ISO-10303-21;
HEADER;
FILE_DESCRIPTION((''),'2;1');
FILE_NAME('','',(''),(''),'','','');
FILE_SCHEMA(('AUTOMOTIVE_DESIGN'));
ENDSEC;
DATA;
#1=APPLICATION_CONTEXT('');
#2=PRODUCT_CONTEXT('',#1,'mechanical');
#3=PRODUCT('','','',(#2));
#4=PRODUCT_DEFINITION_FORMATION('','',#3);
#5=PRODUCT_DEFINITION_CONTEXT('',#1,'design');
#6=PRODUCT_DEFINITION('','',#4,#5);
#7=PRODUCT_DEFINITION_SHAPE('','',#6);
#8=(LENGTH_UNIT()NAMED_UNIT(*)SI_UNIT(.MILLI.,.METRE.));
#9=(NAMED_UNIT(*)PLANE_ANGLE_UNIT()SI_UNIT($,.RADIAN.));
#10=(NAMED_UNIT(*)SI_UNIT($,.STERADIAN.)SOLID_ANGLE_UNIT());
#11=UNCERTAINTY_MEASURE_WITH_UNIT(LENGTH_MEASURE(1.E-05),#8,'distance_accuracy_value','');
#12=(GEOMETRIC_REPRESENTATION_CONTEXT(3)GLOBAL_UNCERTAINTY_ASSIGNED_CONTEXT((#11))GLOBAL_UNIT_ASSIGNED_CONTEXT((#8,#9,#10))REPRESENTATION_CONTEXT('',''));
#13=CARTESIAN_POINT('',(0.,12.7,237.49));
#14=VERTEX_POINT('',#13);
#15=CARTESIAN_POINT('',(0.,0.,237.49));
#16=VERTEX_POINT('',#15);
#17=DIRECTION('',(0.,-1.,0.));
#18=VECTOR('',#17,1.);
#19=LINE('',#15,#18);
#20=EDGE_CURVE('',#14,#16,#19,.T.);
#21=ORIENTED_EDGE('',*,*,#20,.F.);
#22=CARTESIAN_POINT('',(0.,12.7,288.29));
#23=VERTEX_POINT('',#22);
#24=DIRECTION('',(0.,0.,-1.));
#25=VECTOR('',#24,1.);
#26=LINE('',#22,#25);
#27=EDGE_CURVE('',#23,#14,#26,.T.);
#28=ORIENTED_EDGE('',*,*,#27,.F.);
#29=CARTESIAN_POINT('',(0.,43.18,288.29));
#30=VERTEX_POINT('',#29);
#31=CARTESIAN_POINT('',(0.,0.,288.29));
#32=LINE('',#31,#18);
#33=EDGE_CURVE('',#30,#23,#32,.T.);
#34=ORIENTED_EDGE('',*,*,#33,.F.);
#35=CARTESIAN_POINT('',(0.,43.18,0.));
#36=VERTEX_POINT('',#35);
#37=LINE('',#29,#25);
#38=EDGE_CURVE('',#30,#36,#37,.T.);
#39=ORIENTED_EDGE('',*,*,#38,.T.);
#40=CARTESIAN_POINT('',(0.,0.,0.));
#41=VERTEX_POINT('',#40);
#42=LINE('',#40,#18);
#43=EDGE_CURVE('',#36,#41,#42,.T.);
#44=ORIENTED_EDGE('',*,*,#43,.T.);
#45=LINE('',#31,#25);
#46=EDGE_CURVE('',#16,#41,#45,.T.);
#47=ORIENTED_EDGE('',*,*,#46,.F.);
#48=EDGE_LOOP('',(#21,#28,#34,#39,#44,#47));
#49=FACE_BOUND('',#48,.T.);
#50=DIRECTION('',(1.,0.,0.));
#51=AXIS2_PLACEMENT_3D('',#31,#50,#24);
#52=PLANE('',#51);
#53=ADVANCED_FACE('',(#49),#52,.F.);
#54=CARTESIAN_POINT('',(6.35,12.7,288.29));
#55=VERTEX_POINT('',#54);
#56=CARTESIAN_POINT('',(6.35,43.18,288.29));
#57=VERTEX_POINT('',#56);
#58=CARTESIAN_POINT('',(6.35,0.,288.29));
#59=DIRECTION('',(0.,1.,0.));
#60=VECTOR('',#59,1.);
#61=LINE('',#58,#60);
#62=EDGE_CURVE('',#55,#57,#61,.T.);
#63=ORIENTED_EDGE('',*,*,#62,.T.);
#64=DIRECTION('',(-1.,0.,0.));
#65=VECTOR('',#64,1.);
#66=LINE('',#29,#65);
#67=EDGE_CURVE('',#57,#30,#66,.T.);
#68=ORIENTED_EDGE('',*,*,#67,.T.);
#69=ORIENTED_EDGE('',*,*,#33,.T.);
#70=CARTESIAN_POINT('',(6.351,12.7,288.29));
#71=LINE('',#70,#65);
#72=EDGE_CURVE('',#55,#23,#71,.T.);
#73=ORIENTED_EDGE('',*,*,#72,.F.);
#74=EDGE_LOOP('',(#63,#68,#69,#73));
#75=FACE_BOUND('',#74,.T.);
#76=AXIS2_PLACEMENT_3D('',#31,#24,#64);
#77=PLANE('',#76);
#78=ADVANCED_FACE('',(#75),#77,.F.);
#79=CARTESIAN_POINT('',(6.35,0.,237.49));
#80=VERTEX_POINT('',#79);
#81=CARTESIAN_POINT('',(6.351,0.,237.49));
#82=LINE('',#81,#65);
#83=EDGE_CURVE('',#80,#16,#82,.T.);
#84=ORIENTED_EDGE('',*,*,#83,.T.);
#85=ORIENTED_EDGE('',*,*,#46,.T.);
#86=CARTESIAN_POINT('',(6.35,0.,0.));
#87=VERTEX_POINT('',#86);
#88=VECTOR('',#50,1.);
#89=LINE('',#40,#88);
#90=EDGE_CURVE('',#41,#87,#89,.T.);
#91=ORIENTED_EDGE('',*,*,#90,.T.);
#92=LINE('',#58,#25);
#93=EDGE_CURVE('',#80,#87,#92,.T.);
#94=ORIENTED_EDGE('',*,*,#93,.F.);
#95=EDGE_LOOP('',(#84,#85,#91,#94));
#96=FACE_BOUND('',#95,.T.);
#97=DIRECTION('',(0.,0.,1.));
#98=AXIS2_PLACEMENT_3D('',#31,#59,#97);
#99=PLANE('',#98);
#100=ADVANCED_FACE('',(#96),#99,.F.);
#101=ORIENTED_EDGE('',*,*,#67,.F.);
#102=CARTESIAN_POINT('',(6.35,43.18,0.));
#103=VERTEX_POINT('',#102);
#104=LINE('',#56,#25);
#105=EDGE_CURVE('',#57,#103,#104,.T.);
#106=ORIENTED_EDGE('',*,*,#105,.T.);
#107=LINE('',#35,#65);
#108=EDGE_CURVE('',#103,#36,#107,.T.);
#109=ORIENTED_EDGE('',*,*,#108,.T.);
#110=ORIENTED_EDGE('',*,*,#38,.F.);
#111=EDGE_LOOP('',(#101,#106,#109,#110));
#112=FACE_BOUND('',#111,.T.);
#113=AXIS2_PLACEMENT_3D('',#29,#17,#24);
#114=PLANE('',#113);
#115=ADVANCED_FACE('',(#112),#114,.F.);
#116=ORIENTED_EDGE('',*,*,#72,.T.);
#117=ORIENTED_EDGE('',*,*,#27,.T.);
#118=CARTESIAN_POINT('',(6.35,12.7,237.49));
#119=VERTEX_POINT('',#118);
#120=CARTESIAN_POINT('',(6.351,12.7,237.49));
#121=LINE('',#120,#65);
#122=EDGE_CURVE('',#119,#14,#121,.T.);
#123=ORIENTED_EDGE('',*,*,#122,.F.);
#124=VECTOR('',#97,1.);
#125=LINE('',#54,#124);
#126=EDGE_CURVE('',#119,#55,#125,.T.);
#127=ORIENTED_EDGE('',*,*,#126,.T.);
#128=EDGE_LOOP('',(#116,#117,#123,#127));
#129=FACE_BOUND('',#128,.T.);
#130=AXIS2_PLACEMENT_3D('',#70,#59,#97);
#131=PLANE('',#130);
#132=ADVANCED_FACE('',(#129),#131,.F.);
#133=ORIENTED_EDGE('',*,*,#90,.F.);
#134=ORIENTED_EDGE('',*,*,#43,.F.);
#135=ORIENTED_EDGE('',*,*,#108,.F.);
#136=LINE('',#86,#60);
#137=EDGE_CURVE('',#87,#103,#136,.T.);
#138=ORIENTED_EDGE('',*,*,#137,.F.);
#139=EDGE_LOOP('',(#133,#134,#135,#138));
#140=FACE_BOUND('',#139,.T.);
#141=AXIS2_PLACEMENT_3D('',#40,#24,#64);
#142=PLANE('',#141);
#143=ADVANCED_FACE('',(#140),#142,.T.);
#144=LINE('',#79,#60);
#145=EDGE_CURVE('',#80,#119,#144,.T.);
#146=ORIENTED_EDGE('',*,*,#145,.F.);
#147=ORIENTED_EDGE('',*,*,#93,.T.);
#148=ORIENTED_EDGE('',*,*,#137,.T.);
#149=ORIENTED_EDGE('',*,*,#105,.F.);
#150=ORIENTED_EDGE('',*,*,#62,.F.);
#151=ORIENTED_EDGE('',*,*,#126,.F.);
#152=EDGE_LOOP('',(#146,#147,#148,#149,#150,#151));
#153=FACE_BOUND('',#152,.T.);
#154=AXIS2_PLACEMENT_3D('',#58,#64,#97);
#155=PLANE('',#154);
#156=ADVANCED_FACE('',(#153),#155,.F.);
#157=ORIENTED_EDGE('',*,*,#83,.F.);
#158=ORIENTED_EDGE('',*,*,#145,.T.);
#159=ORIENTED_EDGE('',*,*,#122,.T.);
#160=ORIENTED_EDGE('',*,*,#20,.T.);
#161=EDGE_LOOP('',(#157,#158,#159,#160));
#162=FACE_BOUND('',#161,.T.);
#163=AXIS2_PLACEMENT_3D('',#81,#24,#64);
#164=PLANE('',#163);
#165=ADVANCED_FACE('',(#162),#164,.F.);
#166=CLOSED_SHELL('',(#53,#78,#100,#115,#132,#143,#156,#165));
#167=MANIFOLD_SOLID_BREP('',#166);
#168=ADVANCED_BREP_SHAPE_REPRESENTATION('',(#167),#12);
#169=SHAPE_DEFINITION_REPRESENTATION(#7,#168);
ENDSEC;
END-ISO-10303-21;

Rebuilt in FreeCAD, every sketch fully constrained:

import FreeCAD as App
import Part
import Sketcher
from FreeCAD import Vector
Q = App.Units.Quantity

doc = App.newDocument("Part")
body = doc.addObject("PartDesign::Body", "Body")

# Sketch on XY plane
sketch1 = doc.addObject("Sketcher::SketchObject", "Sketch")
body.addObject(sketch1)
sketch1.AttachmentSupport = (doc.XY_Plane, [""])
sketch1.MapMode = "FlatFace"
sketch1.addGeometry([
    Part.LineSegment(Vector(0, 43, 0), Vector(0, 0, 0)),
    Part.LineSegment(Vector(0, 0, 0), Vector(6, 0, 0)),
    Part.LineSegment(Vector(6, 0, 0), Vector(6, 43, 0)),
    Part.LineSegment(Vector(6, 43, 0), Vector(0, 43, 0)),
], False)
sketch1.addConstraint([
    Sketcher.Constraint("Coincident", 0, 2, 1, 1),
    Sketcher.Constraint("Coincident", 1, 2, 2, 1),
    Sketcher.Constraint("Coincident", 2, 2, 3, 1),
    Sketcher.Constraint("Coincident", 3, 2, 0, 1),
    Sketcher.Constraint("Vertical", 0),
    Sketcher.Constraint("Horizontal", 1),
    Sketcher.Constraint("Vertical", 2),
    Sketcher.Constraint("Horizontal", 3),
    Sketcher.Constraint("Coincident", 0, 2, -1, 1),
    Sketcher.Constraint("DistanceY", 0, 2, 0, 1, Q("1.7 in")),
    Sketcher.Constraint("DistanceX", 1, 1, 1, 2, Q("0.25 in")),
])
pad1 = doc.addObject("PartDesign::Pad", "Pad")
body.addObject(pad1)
pad1.Profile = sketch1
pad1.Length = Q("11.35 in")

# Sketch on YZ plane
sketch2 = doc.addObject("Sketcher::SketchObject", "Sketch001")
body.addObject(sketch2)
sketch2.AttachmentSupport = (doc.YZ_Plane, [""])
sketch2.MapMode = "FlatFace"
sketch2.addGeometry([
    Part.LineSegment(Vector(13, 237, 0), Vector(0, 237, 0)),
    Part.LineSegment(Vector(0, 237, 0), Vector(0, 288, 0)),
    Part.LineSegment(Vector(0, 288, 0), Vector(13, 288, 0)),
    Part.LineSegment(Vector(13, 288, 0), Vector(13, 237, 0)),
], False)
sketch2.addConstraint([
    Sketcher.Constraint("Coincident", 0, 2, 1, 1),
    Sketcher.Constraint("Coincident", 1, 2, 2, 1),
    Sketcher.Constraint("Coincident", 2, 2, 3, 1),
    Sketcher.Constraint("Coincident", 3, 2, 0, 1),
    Sketcher.Constraint("Horizontal", 0),
    Sketcher.Constraint("Vertical", 1),
    Sketcher.Constraint("Horizontal", 2),
    Sketcher.Constraint("Vertical", 3),
    Sketcher.Constraint("PointOnObject", 0, 2, -2),
    Sketcher.Constraint("DistanceY", 1, 1, 1, 2, Q("2 in")),
    Sketcher.Constraint("DistanceX", 0, 2, 0, 1, Q("0.5 in")),
    Sketcher.Constraint("DistanceY", -1, 1, 0, 2, Q("9.35 in")),
])
pocket1 = doc.addObject("PartDesign::Pocket", "Pocket")
body.addObject(pocket1)
pocket1.Profile = sketch2
pocket1.Type = "UpToFirst"
pocket1.Reversed = True

doc.recompute()
